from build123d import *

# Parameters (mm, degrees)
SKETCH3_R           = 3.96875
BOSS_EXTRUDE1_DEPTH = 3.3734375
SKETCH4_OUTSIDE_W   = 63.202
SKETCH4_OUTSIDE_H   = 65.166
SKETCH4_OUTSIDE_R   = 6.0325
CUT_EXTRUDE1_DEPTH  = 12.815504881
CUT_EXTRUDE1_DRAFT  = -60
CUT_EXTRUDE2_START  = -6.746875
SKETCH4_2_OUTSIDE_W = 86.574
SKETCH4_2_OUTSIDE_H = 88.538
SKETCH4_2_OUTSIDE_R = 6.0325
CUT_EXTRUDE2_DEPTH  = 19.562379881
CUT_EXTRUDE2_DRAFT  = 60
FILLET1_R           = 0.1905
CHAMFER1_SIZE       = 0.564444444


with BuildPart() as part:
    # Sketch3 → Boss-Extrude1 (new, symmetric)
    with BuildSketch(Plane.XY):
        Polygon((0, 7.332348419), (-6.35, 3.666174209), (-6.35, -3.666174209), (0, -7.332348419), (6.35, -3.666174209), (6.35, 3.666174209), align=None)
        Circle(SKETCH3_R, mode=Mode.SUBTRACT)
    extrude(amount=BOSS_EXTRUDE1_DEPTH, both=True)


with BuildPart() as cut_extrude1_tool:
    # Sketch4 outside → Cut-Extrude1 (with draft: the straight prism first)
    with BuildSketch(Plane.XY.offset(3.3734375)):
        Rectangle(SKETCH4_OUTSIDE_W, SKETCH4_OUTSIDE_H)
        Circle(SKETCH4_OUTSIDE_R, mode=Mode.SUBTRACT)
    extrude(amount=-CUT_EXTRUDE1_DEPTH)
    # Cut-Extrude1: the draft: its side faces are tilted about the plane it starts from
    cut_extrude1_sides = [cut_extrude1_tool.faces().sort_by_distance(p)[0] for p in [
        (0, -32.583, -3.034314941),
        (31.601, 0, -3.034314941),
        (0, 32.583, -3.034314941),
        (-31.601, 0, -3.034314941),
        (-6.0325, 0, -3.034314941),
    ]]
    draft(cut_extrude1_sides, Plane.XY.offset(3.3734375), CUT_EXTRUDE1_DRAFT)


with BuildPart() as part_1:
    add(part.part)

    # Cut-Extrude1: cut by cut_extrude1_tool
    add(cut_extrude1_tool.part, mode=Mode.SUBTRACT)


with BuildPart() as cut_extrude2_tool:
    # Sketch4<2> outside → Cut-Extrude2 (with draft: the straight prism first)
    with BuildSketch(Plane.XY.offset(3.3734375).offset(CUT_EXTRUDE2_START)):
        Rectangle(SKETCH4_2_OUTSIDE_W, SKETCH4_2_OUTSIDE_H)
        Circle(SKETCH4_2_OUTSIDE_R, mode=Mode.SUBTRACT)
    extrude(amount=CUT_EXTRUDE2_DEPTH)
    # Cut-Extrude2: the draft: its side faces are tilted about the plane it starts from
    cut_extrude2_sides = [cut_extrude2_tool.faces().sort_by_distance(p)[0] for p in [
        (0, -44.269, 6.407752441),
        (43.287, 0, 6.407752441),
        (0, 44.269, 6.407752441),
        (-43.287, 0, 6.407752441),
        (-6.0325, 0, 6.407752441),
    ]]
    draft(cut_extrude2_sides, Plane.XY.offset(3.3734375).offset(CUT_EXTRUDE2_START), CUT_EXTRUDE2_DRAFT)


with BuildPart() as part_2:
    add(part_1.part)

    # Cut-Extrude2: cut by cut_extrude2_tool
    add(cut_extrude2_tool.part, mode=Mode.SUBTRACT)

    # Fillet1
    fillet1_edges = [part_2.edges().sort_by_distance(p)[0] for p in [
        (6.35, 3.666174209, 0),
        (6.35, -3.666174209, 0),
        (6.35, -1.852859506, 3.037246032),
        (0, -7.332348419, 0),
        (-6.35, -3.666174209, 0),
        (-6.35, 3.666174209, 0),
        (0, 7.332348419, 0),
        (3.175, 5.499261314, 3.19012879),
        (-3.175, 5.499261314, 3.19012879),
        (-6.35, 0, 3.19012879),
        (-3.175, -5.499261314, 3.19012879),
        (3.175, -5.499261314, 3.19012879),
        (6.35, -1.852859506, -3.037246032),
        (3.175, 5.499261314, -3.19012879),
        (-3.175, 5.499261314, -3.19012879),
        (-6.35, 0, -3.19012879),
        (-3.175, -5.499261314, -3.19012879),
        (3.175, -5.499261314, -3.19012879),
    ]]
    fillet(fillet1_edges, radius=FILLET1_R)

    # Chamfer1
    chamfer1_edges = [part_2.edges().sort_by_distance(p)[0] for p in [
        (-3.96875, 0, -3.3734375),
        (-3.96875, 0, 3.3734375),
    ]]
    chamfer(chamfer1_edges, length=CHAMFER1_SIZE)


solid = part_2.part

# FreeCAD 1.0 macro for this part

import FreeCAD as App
import Part
import Sketcher
from FreeCAD import Vector
Q = App.Units.Quantity


def edges_at(feature, points):
    """Names of the edges that pass closest to the given points."""
    edges = feature.Shape.Edges
    near = lambda p: min(range(len(edges)), key=lambda i: edges[i].distToShape(Part.Vertex(*p))[0])
    return sorted({f"Edge{near(p) + 1}" for p in points})


def faces_at(feature, points):
    """Names of the faces that lie closest to the given points."""
    faces = feature.Shape.Faces
    near = lambda p: min(range(len(faces)), key=lambda i: faces[i].distToShape(Part.Vertex(*p))[0])
    return sorted({f"Face{near(p) + 1}" for p in points})

doc = App.newDocument("Part")
body = doc.addObject("PartDesign::Body", "Body")

# Sketch on XY plane
sketch1 = body.newObject("Sketcher::SketchObject", "Sketch")
sketch1.AttachmentSupport = (doc.getObject("XY_Plane"), [""])
sketch1.MapMode = "FlatFace"
sketch1.addGeometry(Part.LineSegment(Vector(0, 7.332348, 0), Vector(-6.35, 3.666174, 0)), False)
sketch1.addGeometry(Part.LineSegment(Vector(-6.35, 3.666174, 0), Vector(-6.35, -3.666174, 0)), False)
sketch1.addGeometry(Part.LineSegment(Vector(-6.35, -3.666174, 0), Vector(0, -7.332348, 0)), False)
sketch1.addGeometry(Part.LineSegment(Vector(0, -7.332348, 0), Vector(6.35, -3.666174, 0)), False)
sketch1.addGeometry(Part.LineSegment(Vector(6.35, -3.666174, 0), Vector(6.35, 3.666174, 0)), False)
sketch1.addGeometry(Part.LineSegment(Vector(6.35, 3.666174, 0), Vector(0, 7.332348, 0)), False)
sketch1.addGeometry(Part.Circle(Vector(0, 0, 0), Vector(0, 0, 1), 3.96875), False)
sketch1.addConstraint(Sketcher.Constraint("Coincident", 0, 2, 1, 1))
sketch1.addConstraint(Sketcher.Constraint("Coincident", 1, 2, 2, 1))
sketch1.addConstraint(Sketcher.Constraint("Coincident", 2, 2, 3, 1))
sketch1.addConstraint(Sketcher.Constraint("Coincident", 3, 2, 4, 1))
sketch1.addConstraint(Sketcher.Constraint("Coincident", 4, 2, 5, 1))
sketch1.addConstraint(Sketcher.Constraint("Coincident", 5, 2, 0, 1))
sketch1.addConstraint(Sketcher.Constraint("Vertical", 1))
sketch1.addConstraint(Sketcher.Constraint("Vertical", 4))
sketch1.addConstraint(Sketcher.Constraint("Coincident", 6, 3, -1, 1))
sketch1.addConstraint(Sketcher.Constraint("Symmetric", 0, 2, 3, 2, -1, 1))
sketch1.addConstraint(Sketcher.Constraint("Symmetric", 2, 2, 5, 2, -1, 1))
sketch1.addConstraint(Sketcher.Constraint("PointOnObject", 2, 2, -2))
sketch1.addConstraint(Sketcher.Constraint("Parallel", 2, 5))
sketch1.addConstraint(Sketcher.Constraint("Horizontal", 1, 2, 3, 2))
sketch1.addConstraint(Sketcher.Constraint("Diameter", 6, Q("0.3125 in")))
sketch1.addConstraint(Sketcher.Constraint("Angle", 0, Q("-150 deg")))
sketch1.addConstraint(Sketcher.Constraint("DistanceX", 1, 2, 3, 2, Q("0.5 in")))
sketch1.addConstraint(Sketcher.Constraint("DistanceY", 1, 2, 1, 1, Q("7.332348 mm")))
pad1 = body.newObject("PartDesign::Pad", "Pad")
pad1.Profile = sketch1
pad1.Length = Q("0.265625 in")
pad1.Midplane = True
body2 = doc.addObject("PartDesign::Body", "Body001")

# Sketch on XY plane
sketch2 = body2.newObject("Sketcher::SketchObject", "Sketch001")
sketch2.AttachmentSupport = (doc.getObject("XY_Plane001"), [""])
sketch2.MapMode = "FlatFace"
sketch2.AttachmentOffset = App.Placement(Vector(0, 0, 3.373438), App.Rotation())
sketch2.addGeometry(Part.LineSegment(Vector(-31.601, 32.583, 0), Vector(-31.601, -32.583, 0)), False)
sketch2.addGeometry(Part.LineSegment(Vector(-31.601, -32.583, 0), Vector(31.601, -32.583, 0)), False)
sketch2.addGeometry(Part.LineSegment(Vector(31.601, -32.583, 0), Vector(31.601, 32.583, 0)), False)
sketch2.addGeometry(Part.LineSegment(Vector(31.601, 32.583, 0), Vector(-31.601, 32.583, 0)), False)
sketch2.addGeometry(Part.Circle(Vector(0, 0, 0), Vector(0, 0, 1), 6.0325), False)
sketch2.addConstraint(Sketcher.Constraint("Coincident", 0, 2, 1, 1))
sketch2.addConstraint(Sketcher.Constraint("Coincident", 1, 2, 2, 1))
sketch2.addConstraint(Sketcher.Constraint("Coincident", 2, 2, 3, 1))
sketch2.addConstraint(Sketcher.Constraint("Coincident", 3, 2, 0, 1))
sketch2.addConstraint(Sketcher.Constraint("Vertical", 0))
sketch2.addConstraint(Sketcher.Constraint("Horizontal", 1))
sketch2.addConstraint(Sketcher.Constraint("Vertical", 2))
sketch2.addConstraint(Sketcher.Constraint("Horizontal", 3))
sketch2.addConstraint(Sketcher.Constraint("Coincident", 4, 3, -1, 1))
sketch2.addConstraint(Sketcher.Constraint("Symmetric", 0, 2, 2, 2, -1, 1))
sketch2.addConstraint(Sketcher.Constraint("Diameter", 4, Q("0.475 in")))
sketch2.addConstraint(Sketcher.Constraint("DistanceX", 1, 1, 1, 2, Q("63.202 mm")))
sketch2.addConstraint(Sketcher.Constraint("DistanceY", 0, 2, 0, 1, Q("65.166 mm")))
pad2 = body2.newObject("PartDesign::Pad", "Pad001")
pad2.Profile = sketch2
pad2.Length = 12.815505
pad2.Reversed = True
doc.recompute()

datumplane = body2.newObject("PartDesign::Plane", "DatumPlane")
datumplane.AttachmentSupport = (doc.getObject("XY_Plane001"), [""])
datumplane.MapMode = "FlatFace"
datumplane.AttachmentOffset = App.Placement(Vector(0, 0, 3.373438), App.Rotation())
draft = body2.newObject("PartDesign::Draft", "Draft")
draft.Base = (pad2, faces_at(pad2, [
    (0, -32.583, -3.034),
    (31.601, 0, -3.034),
    (0, 32.583, -3.034),
    (-31.601, 0, -3.034),
    (-6.032, 0, -3.034),
]))
draft.NeutralPlane = (datumplane, [""])
draft.Angle = 60
draft.Reversed = True
doc.recompute()

boolean = body.newObject("PartDesign::Boolean", "Boolean")
boolean.Type = "Cut"
boolean.addObjects([body2])
body3 = doc.addObject("PartDesign::Body", "Body002")

# Sketch on XY plane
sketch3 = body3.newObject("Sketcher::SketchObject", "Sketch002")
sketch3.AttachmentSupport = (doc.getObject("XY_Plane002"), [""])
sketch3.MapMode = "FlatFace"
sketch3.AttachmentOffset = App.Placement(Vector(0, 0, -3.373438), App.Rotation())
sketch3.addGeometry(Part.LineSegment(Vector(-43.287, 44.269, 0), Vector(-43.287, -44.269, 0)), False)
sketch3.addGeometry(Part.LineSegment(Vector(-43.287, -44.269, 0), Vector(43.287, -44.269, 0)), False)
sketch3.addGeometry(Part.LineSegment(Vector(43.287, -44.269, 0), Vector(43.287, 44.269, 0)), False)
sketch3.addGeometry(Part.LineSegment(Vector(43.287, 44.269, 0), Vector(-43.287, 44.269, 0)), False)
sketch3.addGeometry(Part.Circle(Vector(0, 0, 0), Vector(0, 0, 1), 6.0325), False)
sketch3.addConstraint(Sketcher.Constraint("Coincident", 0, 2, 1, 1))
sketch3.addConstraint(Sketcher.Constraint("Coincident", 1, 2, 2, 1))
sketch3.addConstraint(Sketcher.Constraint("Coincident", 2, 2, 3, 1))
sketch3.addConstraint(Sketcher.Constraint("Coincident", 3, 2, 0, 1))
sketch3.addConstraint(Sketcher.Constraint("Vertical", 0))
sketch3.addConstraint(Sketcher.Constraint("Horizontal", 1))
sketch3.addConstraint(Sketcher.Constraint("Vertical", 2))
sketch3.addConstraint(Sketcher.Constraint("Horizontal", 3))
sketch3.addConstraint(Sketcher.Constraint("Coincident", 4, 3, -1, 1))
sketch3.addConstraint(Sketcher.Constraint("Symmetric", 0, 2, 2, 2, -1, 1))
sketch3.addConstraint(Sketcher.Constraint("Diameter", 4, Q("0.475 in")))
sketch3.addConstraint(Sketcher.Constraint("DistanceX", 1, 1, 1, 2, Q("86.574 mm")))
sketch3.addConstraint(Sketcher.Constraint("DistanceY", 0, 2, 0, 1, Q("88.538 mm")))
pad3 = body3.newObject("PartDesign::Pad", "Pad002")
pad3.Profile = sketch3
pad3.Length = 19.56238
doc.recompute()

datumplane2 = body3.newObject("PartDesign::Plane", "DatumPlane001")
datumplane2.AttachmentSupport = (doc.getObject("XY_Plane002"), [""])
datumplane2.MapMode = "FlatFace"
datumplane2.AttachmentOffset = App.Placement(Vector(0, 0, -3.373438), App.Rotation())
draft2 = body3.newObject("PartDesign::Draft", "Draft001")
draft2.Base = (pad3, faces_at(pad3, [
    (0, -44.269, 6.408),
    (43.287, 0, 6.408),
    (0, 44.269, 6.408),
    (-43.287, 0, 6.408),
    (-6.032, 0, 6.408),
]))
draft2.NeutralPlane = (datumplane2, [""])
draft2.Angle = 60
draft2.Reversed = False
doc.recompute()

boolean2 = body.newObject("PartDesign::Boolean", "Boolean001")
boolean2.Type = "Cut"
boolean2.addObjects([body3])
doc.recompute()

fillet = body.newObject("PartDesign::Fillet", "Fillet")
fillet.Base = (boolean2, edges_at(boolean2, [
    (6.35, 3.666, 0),
    (6.35, -3.666, 0),
    (6.35, -1.853, 3.037),
    (0, -7.332, 0),
    (-6.35, -3.666, 0),
    (-6.35, 3.666, 0),
    (0, 7.332, 0),
    (3.175, 5.499, 3.19),
    (-3.175, 5.499, 3.19),
    (-6.35, 0, 3.19),
    (-3.175, -5.499, 3.19),
    (3.175, -5.499, 3.19),
    (6.35, -1.853, -3.037),
    (3.175, 5.499, -3.19),
    (-3.175, 5.499, -3.19),
    (-6.35, 0, -3.19),
    (-3.175, -5.499, -3.19),
    (3.175, -5.499, -3.19),
]))
fillet.Radius = Q("0.0075 in")
doc.recompute()

chamfer = body.newObject("PartDesign::Chamfer", "Chamfer")
chamfer.Base = (fillet, edges_at(fillet, [(-3.969, 0, -3.373), (-3.969, 0, 3.373)]))
chamfer.Size = 0.564444

doc.recompute()
